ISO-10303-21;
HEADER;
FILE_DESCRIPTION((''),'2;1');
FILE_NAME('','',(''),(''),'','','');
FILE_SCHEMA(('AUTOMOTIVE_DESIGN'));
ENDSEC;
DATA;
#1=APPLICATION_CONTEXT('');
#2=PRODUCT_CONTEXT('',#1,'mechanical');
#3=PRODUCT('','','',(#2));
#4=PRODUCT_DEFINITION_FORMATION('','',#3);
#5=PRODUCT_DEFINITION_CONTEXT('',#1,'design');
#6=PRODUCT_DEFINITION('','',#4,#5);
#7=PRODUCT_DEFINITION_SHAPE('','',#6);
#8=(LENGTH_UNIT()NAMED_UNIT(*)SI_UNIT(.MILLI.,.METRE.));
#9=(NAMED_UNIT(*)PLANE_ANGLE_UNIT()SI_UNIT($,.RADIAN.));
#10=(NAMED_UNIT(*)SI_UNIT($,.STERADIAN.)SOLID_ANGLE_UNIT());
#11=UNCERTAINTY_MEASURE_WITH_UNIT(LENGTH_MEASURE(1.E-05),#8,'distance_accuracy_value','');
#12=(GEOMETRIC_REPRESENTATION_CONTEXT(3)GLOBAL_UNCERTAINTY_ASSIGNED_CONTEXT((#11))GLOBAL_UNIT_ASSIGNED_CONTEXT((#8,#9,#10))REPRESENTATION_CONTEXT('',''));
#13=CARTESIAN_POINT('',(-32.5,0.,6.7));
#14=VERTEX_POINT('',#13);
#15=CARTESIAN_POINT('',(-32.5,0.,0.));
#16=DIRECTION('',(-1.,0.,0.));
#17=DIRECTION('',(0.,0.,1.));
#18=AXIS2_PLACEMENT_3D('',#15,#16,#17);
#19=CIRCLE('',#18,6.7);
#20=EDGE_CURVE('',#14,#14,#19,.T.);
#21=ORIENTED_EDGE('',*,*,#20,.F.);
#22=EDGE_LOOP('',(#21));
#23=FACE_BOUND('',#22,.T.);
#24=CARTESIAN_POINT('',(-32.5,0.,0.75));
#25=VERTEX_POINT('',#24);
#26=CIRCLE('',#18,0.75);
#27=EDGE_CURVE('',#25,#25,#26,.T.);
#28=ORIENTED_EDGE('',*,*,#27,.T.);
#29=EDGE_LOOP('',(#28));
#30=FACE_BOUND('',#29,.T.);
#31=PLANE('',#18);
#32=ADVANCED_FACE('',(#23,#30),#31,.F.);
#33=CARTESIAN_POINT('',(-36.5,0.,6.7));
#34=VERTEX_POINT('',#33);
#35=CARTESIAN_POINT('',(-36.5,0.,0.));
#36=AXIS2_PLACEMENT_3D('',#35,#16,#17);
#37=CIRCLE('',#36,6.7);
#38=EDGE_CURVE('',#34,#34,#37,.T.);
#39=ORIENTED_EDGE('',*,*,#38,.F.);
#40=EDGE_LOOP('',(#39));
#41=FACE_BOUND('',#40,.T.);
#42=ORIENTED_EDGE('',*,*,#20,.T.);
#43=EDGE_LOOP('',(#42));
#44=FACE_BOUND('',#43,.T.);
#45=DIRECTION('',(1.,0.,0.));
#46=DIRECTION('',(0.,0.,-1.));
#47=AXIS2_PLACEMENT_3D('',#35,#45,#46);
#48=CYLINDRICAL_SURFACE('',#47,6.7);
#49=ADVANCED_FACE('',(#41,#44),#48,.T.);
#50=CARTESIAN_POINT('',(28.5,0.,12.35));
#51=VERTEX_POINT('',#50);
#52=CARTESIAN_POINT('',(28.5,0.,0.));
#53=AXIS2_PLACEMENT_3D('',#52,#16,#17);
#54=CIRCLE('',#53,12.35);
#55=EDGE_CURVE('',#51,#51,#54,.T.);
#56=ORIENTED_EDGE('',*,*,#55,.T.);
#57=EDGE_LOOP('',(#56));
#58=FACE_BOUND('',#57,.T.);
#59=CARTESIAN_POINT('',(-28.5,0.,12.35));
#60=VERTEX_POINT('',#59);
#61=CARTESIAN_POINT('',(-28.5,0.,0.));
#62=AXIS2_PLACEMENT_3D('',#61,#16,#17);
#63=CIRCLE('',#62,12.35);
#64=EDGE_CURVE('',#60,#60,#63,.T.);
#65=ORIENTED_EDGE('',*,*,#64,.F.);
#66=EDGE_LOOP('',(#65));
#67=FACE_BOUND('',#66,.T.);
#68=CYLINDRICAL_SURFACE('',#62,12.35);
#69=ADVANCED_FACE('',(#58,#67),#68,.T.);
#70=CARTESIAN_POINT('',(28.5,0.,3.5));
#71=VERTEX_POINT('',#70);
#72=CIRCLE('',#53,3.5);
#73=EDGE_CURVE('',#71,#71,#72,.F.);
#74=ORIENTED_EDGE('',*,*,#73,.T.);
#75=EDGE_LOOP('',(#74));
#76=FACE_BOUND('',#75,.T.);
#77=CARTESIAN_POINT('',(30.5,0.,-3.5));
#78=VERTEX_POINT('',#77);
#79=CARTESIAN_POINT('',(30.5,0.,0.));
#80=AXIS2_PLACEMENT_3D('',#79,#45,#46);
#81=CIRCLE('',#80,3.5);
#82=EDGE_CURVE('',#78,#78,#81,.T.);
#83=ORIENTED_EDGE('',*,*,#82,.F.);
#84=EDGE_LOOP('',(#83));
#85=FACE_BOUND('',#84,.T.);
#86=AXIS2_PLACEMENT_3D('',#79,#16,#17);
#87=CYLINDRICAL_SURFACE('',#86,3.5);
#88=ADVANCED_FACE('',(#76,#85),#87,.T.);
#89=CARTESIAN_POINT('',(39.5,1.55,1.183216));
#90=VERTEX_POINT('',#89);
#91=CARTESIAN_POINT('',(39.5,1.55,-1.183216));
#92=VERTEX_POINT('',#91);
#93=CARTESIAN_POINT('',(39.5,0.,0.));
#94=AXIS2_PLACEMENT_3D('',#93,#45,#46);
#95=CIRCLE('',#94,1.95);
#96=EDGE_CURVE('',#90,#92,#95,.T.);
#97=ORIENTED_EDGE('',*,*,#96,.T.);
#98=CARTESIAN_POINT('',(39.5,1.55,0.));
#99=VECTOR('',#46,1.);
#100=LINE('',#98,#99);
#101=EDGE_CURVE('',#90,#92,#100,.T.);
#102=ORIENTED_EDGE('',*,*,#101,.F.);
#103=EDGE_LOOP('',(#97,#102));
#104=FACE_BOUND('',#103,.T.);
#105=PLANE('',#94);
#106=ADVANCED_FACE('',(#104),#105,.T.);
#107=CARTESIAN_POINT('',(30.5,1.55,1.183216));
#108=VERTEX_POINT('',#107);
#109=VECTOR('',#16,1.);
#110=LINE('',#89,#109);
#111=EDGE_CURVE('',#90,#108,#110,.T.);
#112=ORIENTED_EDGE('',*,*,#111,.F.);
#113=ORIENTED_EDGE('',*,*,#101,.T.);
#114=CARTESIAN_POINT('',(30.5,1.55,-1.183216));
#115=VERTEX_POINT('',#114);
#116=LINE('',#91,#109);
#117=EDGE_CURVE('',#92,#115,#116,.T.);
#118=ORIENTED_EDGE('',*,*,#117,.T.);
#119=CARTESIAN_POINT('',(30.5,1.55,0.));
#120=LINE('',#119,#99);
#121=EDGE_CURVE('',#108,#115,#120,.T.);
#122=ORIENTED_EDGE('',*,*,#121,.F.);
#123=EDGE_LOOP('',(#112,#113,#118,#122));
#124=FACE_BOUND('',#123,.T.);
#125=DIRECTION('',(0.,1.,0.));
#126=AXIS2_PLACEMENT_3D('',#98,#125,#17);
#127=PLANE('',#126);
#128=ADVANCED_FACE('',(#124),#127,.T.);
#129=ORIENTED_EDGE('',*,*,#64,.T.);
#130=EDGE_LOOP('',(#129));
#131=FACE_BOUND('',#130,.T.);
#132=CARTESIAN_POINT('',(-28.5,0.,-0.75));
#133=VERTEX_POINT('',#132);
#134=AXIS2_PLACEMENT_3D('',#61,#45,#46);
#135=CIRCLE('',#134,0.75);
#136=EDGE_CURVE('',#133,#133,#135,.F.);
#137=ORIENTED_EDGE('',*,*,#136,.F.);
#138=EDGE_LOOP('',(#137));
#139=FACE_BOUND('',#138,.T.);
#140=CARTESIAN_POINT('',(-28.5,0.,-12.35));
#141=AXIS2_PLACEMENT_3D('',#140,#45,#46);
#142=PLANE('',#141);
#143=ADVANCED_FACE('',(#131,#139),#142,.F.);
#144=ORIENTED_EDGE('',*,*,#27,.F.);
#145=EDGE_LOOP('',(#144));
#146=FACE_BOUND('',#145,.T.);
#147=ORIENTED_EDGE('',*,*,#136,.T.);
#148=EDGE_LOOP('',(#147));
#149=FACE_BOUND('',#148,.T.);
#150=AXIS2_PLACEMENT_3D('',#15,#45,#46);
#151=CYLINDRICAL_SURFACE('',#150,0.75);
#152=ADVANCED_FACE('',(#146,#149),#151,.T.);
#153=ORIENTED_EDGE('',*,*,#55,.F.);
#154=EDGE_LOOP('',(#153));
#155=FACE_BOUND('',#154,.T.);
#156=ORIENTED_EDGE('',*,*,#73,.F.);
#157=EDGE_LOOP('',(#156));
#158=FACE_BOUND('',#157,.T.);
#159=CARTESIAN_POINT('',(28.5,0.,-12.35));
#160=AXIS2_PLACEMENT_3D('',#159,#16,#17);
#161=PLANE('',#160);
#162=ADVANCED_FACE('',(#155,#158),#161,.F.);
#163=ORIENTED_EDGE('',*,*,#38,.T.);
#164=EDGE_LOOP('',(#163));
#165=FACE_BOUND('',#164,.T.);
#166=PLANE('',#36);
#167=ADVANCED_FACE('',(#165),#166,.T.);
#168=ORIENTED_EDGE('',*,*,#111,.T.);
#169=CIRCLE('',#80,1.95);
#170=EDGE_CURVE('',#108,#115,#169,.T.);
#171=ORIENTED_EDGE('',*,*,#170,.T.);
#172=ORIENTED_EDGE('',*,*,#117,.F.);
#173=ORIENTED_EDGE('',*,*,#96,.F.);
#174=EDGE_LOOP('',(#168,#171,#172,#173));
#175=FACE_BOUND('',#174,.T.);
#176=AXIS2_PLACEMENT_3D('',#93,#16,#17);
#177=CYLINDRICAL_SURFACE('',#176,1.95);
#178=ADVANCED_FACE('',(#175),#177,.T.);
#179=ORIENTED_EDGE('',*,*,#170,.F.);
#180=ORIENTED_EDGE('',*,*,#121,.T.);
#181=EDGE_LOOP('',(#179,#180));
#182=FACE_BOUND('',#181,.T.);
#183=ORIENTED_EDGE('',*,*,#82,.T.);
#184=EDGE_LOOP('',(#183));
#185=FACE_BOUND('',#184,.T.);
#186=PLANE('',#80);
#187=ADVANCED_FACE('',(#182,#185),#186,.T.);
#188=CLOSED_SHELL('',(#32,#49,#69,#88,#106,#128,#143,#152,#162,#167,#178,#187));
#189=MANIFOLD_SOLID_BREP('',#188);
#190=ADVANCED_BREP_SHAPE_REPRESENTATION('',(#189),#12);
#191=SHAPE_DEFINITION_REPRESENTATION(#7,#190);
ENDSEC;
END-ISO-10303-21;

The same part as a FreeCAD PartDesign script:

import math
import FreeCAD as App
import Part
import Sketcher

V = App.Vector
Q = App.Units.Quantity


def add_polygon(sketch, points):
    """Adds a closed chain of lines whose ends are joined by coincident constraints."""
    first, n = sketch.GeometryCount, len(points)
    for a, b in zip(points, points[1:] + points[:1]):
        sketch.addGeometry(Part.LineSegment(App.Vector(*a, 0), App.Vector(*b, 0)), False)
    for i in range(n):
        sketch.addConstraint(Sketcher.Constraint("Coincident", first + i, 2, first + (i + 1) % n, 1))

doc = App.newDocument("Part")
body = doc.addObject("PartDesign::Body", "Body")

sketch1 = doc.addObject("Sketcher::SketchObject", "Sketch")
body.addObject(sketch1)
sketch1.AttachmentSupport = (doc.XZ_Plane, [""])
sketch1.MapMode = "FlatFace"
add_polygon(sketch1, [(-28, -12), (-28, 0), (28, 0), (28, -12)])
sketch1.addConstraint(Sketcher.Constraint("Vertical", 0))
sketch1.addConstraint(Sketcher.Constraint("Horizontal", 1))
sketch1.addConstraint(Sketcher.Constraint("Vertical", 2))
sketch1.addConstraint(Sketcher.Constraint("Horizontal", 3))
sketch1.addConstraint(Sketcher.Constraint("Symmetric", 0, 2, 1, 2, -1, 1))
sketch1.addConstraint(Sketcher.Constraint("DistanceX", 1, 1, 1, 2, Q("57 mm")))
sketch1.addConstraint(Sketcher.Constraint("DistanceY", 0, 1, 0, 2, Q("12.35 mm")))
revolution = doc.addObject("PartDesign::Revolution", "Revolution")
body.addObject(revolution)
revolution.Profile = sketch1
revolution.ReferenceAxis = (sketch1, ["H_Axis"])
revolution.Angle = 360

sketch2 = doc.addObject("Sketcher::SketchObject", "Sketch001")
body.addObject(sketch2)
sketch2.AttachmentSupport = (doc.YZ_Plane, [""])
sketch2.MapMode = "FlatFace"
sketch2.AttachmentOffset = App.Placement(V(0, 0, 28.5), App.Rotation())
sketch2.addGeometry(Part.Circle(V(0, 0, 0), V(0, 0, 1), 3.5), False)
sketch2.addConstraint(Sketcher.Constraint("Coincident", 0, 3, -1, 1))
sketch2.addConstraint(Sketcher.Constraint("Diameter", 0, Q("7 mm")))
pad1 = doc.addObject("PartDesign::Pad", "Pad")
body.addObject(pad1)
pad1.Profile = sketch2
pad1.Length = 2

sketch3 = doc.addObject("Sketcher::SketchObject", "Sketch002")
body.addObject(sketch3)
sketch3.AttachmentSupport = (doc.YZ_Plane, [""])
sketch3.MapMode = "FlatFace"
sketch3.AttachmentOffset = App.Placement(V(0, 0, -28.5), App.Rotation())
sketch3.addGeometry(Part.Circle(V(0, 0, 0), V(0, 0, 1), 0.8), False)
sketch3.addConstraint(Sketcher.Constraint("Coincident", 0, 3, -1, 1))
sketch3.addConstraint(Sketcher.Constraint("Diameter", 0, Q("1.5 mm")))
pad2 = doc.addObject("PartDesign::Pad", "Pad001")
body.addObject(pad2)
pad2.Profile = sketch3
pad2.Length = 4
pad2.Reversed = True

sketch4 = doc.addObject("Sketcher::SketchObject", "Sketch003")
body.addObject(sketch4)
sketch4.AttachmentSupport = (doc.YZ_Plane, [""])
sketch4.MapMode = "FlatFace"
sketch4.AttachmentOffset = App.Placement(V(0, 0, -32.5), App.Rotation())
sketch4.addGeometry(Part.Circle(V(0, 0, 0), V(0, 0, 1), 7), False)
sketch4.addConstraint(Sketcher.Constraint("Coincident", 0, 3, -1, 1))
sketch4.addConstraint(Sketcher.Constraint("Diameter", 0, Q("13.4 mm")))
pad3 = doc.addObject("PartDesign::Pad", "Pad002")
body.addObject(pad3)
pad3.Profile = sketch4
pad3.Length = 4
pad3.Reversed = True

sketch5 = doc.addObject("Sketcher::SketchObject", "Sketch004")
body.addObject(sketch5)
sketch5.AttachmentSupport = (doc.YZ_Plane, [""])
sketch5.MapMode = "FlatFace"
sketch5.AttachmentOffset = App.Placement(V(0, 0, 30.5), App.Rotation())
sketch5.addGeometry(Part.LineSegment(V(1.6, -1.2, 0), V(1.6, 1.2, 0)), False)
sketch5.addGeometry(Part.ArcOfCircle(Part.Circle(V(0, 0, 0), V(0, 0, 1), 1.9), math.radians(37), math.radians(270)), False)
sketch5.addGeometry(Part.ArcOfCircle(Part.Circle(V(0, 0, 0), V(0, 0, 1), 2), math.radians(-90), math.radians(-37)), False)
sketch5.addConstraint(Sketcher.Constraint("Coincident", 0, 2, 1, 1))
sketch5.addConstraint(Sketcher.Constraint("Tangent", 1, 2, 2, 1))
sketch5.addConstraint(Sketcher.Constraint("Coincident", 2, 2, 0, 1))
sketch5.addConstraint(Sketcher.Constraint("Vertical", 0))
sketch5.addConstraint(Sketcher.Constraint("Coincident", 1, 3, -1, 1))
sketch5.addConstraint(Sketcher.Constraint("Equal", 1, 2))
sketch5.addConstraint(Sketcher.Constraint("PointOnObject", 1, 2, -2))
sketch5.addConstraint(Sketcher.Constraint("Radius", 1, Q("1.95 mm")))
sketch5.addConstraint(Sketcher.Constraint("DistanceX", -1, 1, 0, 2, Q("1.55 mm")))
pad4 = doc.addObject("PartDesign::Pad", "Pad003")
body.addObject(pad4)
pad4.Profile = sketch5
pad4.Length = 9

doc.recompute()
